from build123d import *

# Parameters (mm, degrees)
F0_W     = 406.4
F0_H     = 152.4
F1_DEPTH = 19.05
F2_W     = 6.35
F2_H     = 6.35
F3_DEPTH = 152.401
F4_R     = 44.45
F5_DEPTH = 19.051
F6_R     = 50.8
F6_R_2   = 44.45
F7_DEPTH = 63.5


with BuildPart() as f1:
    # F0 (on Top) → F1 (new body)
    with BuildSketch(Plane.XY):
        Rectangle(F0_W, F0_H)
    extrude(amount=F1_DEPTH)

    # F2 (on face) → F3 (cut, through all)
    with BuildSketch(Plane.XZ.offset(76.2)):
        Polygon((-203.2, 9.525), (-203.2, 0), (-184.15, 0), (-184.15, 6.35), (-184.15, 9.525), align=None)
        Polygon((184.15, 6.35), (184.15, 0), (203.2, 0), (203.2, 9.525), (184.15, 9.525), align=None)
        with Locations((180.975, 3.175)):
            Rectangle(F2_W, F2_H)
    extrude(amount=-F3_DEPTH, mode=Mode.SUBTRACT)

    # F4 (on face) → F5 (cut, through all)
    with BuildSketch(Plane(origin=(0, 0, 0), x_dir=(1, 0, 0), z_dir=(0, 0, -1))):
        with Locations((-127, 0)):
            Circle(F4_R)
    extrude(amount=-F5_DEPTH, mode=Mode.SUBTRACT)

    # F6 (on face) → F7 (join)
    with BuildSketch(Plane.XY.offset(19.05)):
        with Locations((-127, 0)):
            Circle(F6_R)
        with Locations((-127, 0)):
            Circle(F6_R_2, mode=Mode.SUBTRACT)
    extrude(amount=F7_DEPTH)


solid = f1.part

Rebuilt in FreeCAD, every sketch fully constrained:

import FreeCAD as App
import Part
import Sketcher
from FreeCAD import Vector
Q = App.Units.Quantity


def add_polygon(sketch, points):
    """Adds a closed chain of lines whose ends are joined by coincident constraints."""
    first, n = sketch.GeometryCount, len(points)
    for a, b in zip(points, points[1:] + points[:1]):
        sketch.addGeometry(Part.LineSegment(App.Vector(*a, 0), App.Vector(*b, 0)), False)
    for i in range(n):
        sketch.addConstraint(Sketcher.Constraint("Coincident", first + i, 2, first + (i + 1) % n, 1))

doc = App.newDocument("Part")
body = doc.addObject("PartDesign::Body", "Body")

sketch1 = doc.addObject("Sketcher::SketchObject", "Sketch")
body.addObject(sketch1)
sketch1.AttachmentSupport = (doc.XY_Plane, [""])
sketch1.MapMode = "FlatFace"
add_polygon(sketch1, [(-203, 76), (-203, -76), (203, -76), (203, 76)])
sketch1.addConstraint(Sketcher.Constraint("Vertical", 0))
sketch1.addConstraint(Sketcher.Constraint("Horizontal", 1))
sketch1.addConstraint(Sketcher.Constraint("Vertical", 2))
sketch1.addConstraint(Sketcher.Constraint("Horizontal", 3))
sketch1.addConstraint(Sketcher.Constraint("Symmetric", 0, 2, 2, 2, -1, 1))
sketch1.addConstraint(Sketcher.Constraint("DistanceX", 1, 1, 1, 2, Q("16 in")))
sketch1.addConstraint(Sketcher.Constraint("DistanceY", 0, 2, 0, 1, Q("6 in")))
pad1 = doc.addObject("PartDesign::Pad", "Pad")
body.addObject(pad1)
pad1.Profile = sketch1
pad1.Length = Q("0.75 in")

sketch2 = doc.addObject("Sketcher::SketchObject", "Sketch001")
body.addObject(sketch2)
sketch2.AttachmentSupport = (doc.XZ_Plane, [""])
sketch2.MapMode = "FlatFace"
sketch2.AttachmentOffset = App.Placement(Vector(0, 0, 3 * 25.4), App.Rotation())
add_polygon(sketch2, [(-203.2, 9.5), (-203.2, 0), (-184.2, 0), (-184.2, 9.5)])
add_polygon(sketch2, [(203.2, 0), (203.2, 9.5), (184.2, 9.5), (184.2, 6.3), (177.8, 6.3), (177.8, 0)])
sketch2.addConstraint(Sketcher.Constraint("Vertical", 0))
sketch2.addConstraint(Sketcher.Constraint("Horizontal", 1))
sketch2.addConstraint(Sketcher.Constraint("Vertical", 2))
sketch2.addConstraint(Sketcher.Constraint("Horizontal", 3))
sketch2.addConstraint(Sketcher.Constraint("Vertical", 4))
sketch2.addConstraint(Sketcher.Constraint("Horizontal", 5))
sketch2.addConstraint(Sketcher.Constraint("Vertical", 6))
sketch2.addConstraint(Sketcher.Constraint("Horizontal", 7))
sketch2.addConstraint(Sketcher.Constraint("Vertical", 8))
sketch2.addConstraint(Sketcher.Constraint("Horizontal", 9))
sketch2.addConstraint(Sketcher.Constraint("Symmetric", 0, 2, 9, 2, -1, 1))
sketch2.addConstraint(Sketcher.Constraint("Symmetric", 2, 2, 5, 2, -2))
sketch2.addConstraint(Sketcher.Constraint("PointOnObject", 0, 2, -1))
sketch2.addConstraint(Sketcher.Constraint("Equal", 7, 8))
sketch2.addConstraint(Sketcher.Constraint("DistanceX", 9, 1, 9, 2, Q("1 in")))
sketch2.addConstraint(Sketcher.Constraint("DistanceX", 0, 2, -1, 1, Q("8 in")))
sketch2.addConstraint(Sketcher.Constraint("DistanceX", 1, 1, 1, 2, Q("0.75 in")))
sketch2.addConstraint(Sketcher.Constraint("DistanceY", 0, 2, 0, 1, Q("0.375 in")))
pocket1 = doc.addObject("PartDesign::Pocket", "Pocket")
body.addObject(pocket1)
pocket1.Profile = sketch2
pocket1.Type = "ThroughAll"

sketch3 = doc.addObject("Sketcher::SketchObject", "Sketch002")
body.addObject(sketch3)
sketch3.AttachmentSupport = (doc.XY_Plane, [""])
sketch3.MapMode = "FlatFace"
sketch3.addGeometry(Part.Circle(Vector(-127, 0, 0), Vector(0, 0, 1), 44), False)
sketch3.addConstraint(Sketcher.Constraint("PointOnObject", 0, 3, -1))
sketch3.addConstraint(Sketcher.Constraint("Diameter", 0, Q("3.5 in")))
sketch3.addConstraint(Sketcher.Constraint("DistanceX", 0, 3, -1, 1, Q("5 in")))
pocket2 = doc.addObject("PartDesign::Pocket", "Pocket001")
body.addObject(pocket2)
pocket2.Profile = sketch3
pocket2.Type = "ThroughAll"
pocket2.Reversed = True

sketch4 = doc.addObject("Sketcher::SketchObject", "Sketch003")
body.addObject(sketch4)
sketch4.AttachmentSupport = (doc.XY_Plane, [""])
sketch4.MapMode = "FlatFace"
sketch4.AttachmentOffset = App.Placement(Vector(0, 0, 0.75 * 25.4), App.Rotation())
sketch4.addGeometry(Part.Circle(Vector(-127, 0, 0), Vector(0, 0, 1), 51), False)
sketch4.addGeometry(Part.Circle(Vector(-127, 0, 0), Vector(0, 0, 1), 44), False)
sketch4.addConstraint(Sketcher.Constraint("Coincident", 1, 3, 0, 3))
sketch4.addConstraint(Sketcher.Constraint("PointOnObject", 0, 3, -1))
sketch4.addConstraint(Sketcher.Constraint("Diameter", 0, Q("4 in")))
sketch4.addConstraint(Sketcher.Constraint("Diameter", 1, Q("3.5 in")))
sketch4.addConstraint(Sketcher.Constraint("DistanceX", 0, 3, -1, 1, Q("5 in")))
pad2 = doc.addObject("PartDesign::Pad", "Pad001")
body.addObject(pad2)
pad2.Profile = sketch4
pad2.Length = Q("2.5 in")

doc.recompute()
